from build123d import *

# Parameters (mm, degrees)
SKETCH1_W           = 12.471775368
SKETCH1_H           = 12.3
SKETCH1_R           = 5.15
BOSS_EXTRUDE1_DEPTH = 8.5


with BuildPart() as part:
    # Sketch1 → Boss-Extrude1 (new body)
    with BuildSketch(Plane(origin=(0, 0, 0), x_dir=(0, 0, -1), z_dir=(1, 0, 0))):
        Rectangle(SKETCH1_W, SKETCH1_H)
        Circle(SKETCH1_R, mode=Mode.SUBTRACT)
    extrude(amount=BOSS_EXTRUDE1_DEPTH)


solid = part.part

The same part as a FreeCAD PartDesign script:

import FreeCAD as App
import Part
import Sketcher

doc = App.newDocument("Part")
body = doc.addObject("PartDesign::Body", "Body")

# Sketch on YZ plane
sketch1 = body.newObject("Sketcher::SketchObject", "Sketch")
sketch1.AttachmentSupport = (doc.getObject("YZ_Plane"), [""])
sketch1.MapMode = "FlatFace"
sketch1.addGeometry([
    Part.LineSegment(App.Vector(6, 6, 0), App.Vector(-6, 6, 0)),  # 0
    Part.LineSegment(App.Vector(-6, 6, 0), App.Vector(-6, -6, 0)),  # 1
    Part.LineSegment(App.Vector(-6, -6, 0), App.Vector(6, -6, 0)),  # 2
    Part.LineSegment(App.Vector(6, -6, 0), App.Vector(6, 6, 0)),  # 3
    Part.Circle(App.Vector(0, 0, 0), App.Vector(0, 0, 1), 5),  # 4
], False)
sketch1.addConstraint([
    Sketcher.Constraint("Coincident", 0, 2, 1, 1),
    Sketcher.Constraint("Coincident", 1, 2, 2, 1),
    Sketcher.Constraint("Coincident", 2, 2, 3, 1),
    Sketcher.Constraint("Coincident", 3, 2, 0, 1),
    Sketcher.Constraint("Horizontal", 0),
    Sketcher.Constraint("Vertical", 1),
    Sketcher.Constraint("Horizontal", 2),
    Sketcher.Constraint("Vertical", 3),
    Sketcher.Constraint("Coincident", 4, 3, -1, 1),
    Sketcher.Constraint("Symmetric", 0, 2, 2, 2, -1, 1),
    Sketcher.Constraint("Diameter", 4, 10.3),
    Sketcher.Constraint("DistanceX", 0, 2, 0, 1, 12.3),
    Sketcher.Constraint("DistanceY", 1, 2, 1, 1, 12.471775),
])
pad1 = body.newObject("PartDesign::Pad", "Pad")
pad1.Profile = sketch1
pad1.Length = 8.5

doc.recompute()
